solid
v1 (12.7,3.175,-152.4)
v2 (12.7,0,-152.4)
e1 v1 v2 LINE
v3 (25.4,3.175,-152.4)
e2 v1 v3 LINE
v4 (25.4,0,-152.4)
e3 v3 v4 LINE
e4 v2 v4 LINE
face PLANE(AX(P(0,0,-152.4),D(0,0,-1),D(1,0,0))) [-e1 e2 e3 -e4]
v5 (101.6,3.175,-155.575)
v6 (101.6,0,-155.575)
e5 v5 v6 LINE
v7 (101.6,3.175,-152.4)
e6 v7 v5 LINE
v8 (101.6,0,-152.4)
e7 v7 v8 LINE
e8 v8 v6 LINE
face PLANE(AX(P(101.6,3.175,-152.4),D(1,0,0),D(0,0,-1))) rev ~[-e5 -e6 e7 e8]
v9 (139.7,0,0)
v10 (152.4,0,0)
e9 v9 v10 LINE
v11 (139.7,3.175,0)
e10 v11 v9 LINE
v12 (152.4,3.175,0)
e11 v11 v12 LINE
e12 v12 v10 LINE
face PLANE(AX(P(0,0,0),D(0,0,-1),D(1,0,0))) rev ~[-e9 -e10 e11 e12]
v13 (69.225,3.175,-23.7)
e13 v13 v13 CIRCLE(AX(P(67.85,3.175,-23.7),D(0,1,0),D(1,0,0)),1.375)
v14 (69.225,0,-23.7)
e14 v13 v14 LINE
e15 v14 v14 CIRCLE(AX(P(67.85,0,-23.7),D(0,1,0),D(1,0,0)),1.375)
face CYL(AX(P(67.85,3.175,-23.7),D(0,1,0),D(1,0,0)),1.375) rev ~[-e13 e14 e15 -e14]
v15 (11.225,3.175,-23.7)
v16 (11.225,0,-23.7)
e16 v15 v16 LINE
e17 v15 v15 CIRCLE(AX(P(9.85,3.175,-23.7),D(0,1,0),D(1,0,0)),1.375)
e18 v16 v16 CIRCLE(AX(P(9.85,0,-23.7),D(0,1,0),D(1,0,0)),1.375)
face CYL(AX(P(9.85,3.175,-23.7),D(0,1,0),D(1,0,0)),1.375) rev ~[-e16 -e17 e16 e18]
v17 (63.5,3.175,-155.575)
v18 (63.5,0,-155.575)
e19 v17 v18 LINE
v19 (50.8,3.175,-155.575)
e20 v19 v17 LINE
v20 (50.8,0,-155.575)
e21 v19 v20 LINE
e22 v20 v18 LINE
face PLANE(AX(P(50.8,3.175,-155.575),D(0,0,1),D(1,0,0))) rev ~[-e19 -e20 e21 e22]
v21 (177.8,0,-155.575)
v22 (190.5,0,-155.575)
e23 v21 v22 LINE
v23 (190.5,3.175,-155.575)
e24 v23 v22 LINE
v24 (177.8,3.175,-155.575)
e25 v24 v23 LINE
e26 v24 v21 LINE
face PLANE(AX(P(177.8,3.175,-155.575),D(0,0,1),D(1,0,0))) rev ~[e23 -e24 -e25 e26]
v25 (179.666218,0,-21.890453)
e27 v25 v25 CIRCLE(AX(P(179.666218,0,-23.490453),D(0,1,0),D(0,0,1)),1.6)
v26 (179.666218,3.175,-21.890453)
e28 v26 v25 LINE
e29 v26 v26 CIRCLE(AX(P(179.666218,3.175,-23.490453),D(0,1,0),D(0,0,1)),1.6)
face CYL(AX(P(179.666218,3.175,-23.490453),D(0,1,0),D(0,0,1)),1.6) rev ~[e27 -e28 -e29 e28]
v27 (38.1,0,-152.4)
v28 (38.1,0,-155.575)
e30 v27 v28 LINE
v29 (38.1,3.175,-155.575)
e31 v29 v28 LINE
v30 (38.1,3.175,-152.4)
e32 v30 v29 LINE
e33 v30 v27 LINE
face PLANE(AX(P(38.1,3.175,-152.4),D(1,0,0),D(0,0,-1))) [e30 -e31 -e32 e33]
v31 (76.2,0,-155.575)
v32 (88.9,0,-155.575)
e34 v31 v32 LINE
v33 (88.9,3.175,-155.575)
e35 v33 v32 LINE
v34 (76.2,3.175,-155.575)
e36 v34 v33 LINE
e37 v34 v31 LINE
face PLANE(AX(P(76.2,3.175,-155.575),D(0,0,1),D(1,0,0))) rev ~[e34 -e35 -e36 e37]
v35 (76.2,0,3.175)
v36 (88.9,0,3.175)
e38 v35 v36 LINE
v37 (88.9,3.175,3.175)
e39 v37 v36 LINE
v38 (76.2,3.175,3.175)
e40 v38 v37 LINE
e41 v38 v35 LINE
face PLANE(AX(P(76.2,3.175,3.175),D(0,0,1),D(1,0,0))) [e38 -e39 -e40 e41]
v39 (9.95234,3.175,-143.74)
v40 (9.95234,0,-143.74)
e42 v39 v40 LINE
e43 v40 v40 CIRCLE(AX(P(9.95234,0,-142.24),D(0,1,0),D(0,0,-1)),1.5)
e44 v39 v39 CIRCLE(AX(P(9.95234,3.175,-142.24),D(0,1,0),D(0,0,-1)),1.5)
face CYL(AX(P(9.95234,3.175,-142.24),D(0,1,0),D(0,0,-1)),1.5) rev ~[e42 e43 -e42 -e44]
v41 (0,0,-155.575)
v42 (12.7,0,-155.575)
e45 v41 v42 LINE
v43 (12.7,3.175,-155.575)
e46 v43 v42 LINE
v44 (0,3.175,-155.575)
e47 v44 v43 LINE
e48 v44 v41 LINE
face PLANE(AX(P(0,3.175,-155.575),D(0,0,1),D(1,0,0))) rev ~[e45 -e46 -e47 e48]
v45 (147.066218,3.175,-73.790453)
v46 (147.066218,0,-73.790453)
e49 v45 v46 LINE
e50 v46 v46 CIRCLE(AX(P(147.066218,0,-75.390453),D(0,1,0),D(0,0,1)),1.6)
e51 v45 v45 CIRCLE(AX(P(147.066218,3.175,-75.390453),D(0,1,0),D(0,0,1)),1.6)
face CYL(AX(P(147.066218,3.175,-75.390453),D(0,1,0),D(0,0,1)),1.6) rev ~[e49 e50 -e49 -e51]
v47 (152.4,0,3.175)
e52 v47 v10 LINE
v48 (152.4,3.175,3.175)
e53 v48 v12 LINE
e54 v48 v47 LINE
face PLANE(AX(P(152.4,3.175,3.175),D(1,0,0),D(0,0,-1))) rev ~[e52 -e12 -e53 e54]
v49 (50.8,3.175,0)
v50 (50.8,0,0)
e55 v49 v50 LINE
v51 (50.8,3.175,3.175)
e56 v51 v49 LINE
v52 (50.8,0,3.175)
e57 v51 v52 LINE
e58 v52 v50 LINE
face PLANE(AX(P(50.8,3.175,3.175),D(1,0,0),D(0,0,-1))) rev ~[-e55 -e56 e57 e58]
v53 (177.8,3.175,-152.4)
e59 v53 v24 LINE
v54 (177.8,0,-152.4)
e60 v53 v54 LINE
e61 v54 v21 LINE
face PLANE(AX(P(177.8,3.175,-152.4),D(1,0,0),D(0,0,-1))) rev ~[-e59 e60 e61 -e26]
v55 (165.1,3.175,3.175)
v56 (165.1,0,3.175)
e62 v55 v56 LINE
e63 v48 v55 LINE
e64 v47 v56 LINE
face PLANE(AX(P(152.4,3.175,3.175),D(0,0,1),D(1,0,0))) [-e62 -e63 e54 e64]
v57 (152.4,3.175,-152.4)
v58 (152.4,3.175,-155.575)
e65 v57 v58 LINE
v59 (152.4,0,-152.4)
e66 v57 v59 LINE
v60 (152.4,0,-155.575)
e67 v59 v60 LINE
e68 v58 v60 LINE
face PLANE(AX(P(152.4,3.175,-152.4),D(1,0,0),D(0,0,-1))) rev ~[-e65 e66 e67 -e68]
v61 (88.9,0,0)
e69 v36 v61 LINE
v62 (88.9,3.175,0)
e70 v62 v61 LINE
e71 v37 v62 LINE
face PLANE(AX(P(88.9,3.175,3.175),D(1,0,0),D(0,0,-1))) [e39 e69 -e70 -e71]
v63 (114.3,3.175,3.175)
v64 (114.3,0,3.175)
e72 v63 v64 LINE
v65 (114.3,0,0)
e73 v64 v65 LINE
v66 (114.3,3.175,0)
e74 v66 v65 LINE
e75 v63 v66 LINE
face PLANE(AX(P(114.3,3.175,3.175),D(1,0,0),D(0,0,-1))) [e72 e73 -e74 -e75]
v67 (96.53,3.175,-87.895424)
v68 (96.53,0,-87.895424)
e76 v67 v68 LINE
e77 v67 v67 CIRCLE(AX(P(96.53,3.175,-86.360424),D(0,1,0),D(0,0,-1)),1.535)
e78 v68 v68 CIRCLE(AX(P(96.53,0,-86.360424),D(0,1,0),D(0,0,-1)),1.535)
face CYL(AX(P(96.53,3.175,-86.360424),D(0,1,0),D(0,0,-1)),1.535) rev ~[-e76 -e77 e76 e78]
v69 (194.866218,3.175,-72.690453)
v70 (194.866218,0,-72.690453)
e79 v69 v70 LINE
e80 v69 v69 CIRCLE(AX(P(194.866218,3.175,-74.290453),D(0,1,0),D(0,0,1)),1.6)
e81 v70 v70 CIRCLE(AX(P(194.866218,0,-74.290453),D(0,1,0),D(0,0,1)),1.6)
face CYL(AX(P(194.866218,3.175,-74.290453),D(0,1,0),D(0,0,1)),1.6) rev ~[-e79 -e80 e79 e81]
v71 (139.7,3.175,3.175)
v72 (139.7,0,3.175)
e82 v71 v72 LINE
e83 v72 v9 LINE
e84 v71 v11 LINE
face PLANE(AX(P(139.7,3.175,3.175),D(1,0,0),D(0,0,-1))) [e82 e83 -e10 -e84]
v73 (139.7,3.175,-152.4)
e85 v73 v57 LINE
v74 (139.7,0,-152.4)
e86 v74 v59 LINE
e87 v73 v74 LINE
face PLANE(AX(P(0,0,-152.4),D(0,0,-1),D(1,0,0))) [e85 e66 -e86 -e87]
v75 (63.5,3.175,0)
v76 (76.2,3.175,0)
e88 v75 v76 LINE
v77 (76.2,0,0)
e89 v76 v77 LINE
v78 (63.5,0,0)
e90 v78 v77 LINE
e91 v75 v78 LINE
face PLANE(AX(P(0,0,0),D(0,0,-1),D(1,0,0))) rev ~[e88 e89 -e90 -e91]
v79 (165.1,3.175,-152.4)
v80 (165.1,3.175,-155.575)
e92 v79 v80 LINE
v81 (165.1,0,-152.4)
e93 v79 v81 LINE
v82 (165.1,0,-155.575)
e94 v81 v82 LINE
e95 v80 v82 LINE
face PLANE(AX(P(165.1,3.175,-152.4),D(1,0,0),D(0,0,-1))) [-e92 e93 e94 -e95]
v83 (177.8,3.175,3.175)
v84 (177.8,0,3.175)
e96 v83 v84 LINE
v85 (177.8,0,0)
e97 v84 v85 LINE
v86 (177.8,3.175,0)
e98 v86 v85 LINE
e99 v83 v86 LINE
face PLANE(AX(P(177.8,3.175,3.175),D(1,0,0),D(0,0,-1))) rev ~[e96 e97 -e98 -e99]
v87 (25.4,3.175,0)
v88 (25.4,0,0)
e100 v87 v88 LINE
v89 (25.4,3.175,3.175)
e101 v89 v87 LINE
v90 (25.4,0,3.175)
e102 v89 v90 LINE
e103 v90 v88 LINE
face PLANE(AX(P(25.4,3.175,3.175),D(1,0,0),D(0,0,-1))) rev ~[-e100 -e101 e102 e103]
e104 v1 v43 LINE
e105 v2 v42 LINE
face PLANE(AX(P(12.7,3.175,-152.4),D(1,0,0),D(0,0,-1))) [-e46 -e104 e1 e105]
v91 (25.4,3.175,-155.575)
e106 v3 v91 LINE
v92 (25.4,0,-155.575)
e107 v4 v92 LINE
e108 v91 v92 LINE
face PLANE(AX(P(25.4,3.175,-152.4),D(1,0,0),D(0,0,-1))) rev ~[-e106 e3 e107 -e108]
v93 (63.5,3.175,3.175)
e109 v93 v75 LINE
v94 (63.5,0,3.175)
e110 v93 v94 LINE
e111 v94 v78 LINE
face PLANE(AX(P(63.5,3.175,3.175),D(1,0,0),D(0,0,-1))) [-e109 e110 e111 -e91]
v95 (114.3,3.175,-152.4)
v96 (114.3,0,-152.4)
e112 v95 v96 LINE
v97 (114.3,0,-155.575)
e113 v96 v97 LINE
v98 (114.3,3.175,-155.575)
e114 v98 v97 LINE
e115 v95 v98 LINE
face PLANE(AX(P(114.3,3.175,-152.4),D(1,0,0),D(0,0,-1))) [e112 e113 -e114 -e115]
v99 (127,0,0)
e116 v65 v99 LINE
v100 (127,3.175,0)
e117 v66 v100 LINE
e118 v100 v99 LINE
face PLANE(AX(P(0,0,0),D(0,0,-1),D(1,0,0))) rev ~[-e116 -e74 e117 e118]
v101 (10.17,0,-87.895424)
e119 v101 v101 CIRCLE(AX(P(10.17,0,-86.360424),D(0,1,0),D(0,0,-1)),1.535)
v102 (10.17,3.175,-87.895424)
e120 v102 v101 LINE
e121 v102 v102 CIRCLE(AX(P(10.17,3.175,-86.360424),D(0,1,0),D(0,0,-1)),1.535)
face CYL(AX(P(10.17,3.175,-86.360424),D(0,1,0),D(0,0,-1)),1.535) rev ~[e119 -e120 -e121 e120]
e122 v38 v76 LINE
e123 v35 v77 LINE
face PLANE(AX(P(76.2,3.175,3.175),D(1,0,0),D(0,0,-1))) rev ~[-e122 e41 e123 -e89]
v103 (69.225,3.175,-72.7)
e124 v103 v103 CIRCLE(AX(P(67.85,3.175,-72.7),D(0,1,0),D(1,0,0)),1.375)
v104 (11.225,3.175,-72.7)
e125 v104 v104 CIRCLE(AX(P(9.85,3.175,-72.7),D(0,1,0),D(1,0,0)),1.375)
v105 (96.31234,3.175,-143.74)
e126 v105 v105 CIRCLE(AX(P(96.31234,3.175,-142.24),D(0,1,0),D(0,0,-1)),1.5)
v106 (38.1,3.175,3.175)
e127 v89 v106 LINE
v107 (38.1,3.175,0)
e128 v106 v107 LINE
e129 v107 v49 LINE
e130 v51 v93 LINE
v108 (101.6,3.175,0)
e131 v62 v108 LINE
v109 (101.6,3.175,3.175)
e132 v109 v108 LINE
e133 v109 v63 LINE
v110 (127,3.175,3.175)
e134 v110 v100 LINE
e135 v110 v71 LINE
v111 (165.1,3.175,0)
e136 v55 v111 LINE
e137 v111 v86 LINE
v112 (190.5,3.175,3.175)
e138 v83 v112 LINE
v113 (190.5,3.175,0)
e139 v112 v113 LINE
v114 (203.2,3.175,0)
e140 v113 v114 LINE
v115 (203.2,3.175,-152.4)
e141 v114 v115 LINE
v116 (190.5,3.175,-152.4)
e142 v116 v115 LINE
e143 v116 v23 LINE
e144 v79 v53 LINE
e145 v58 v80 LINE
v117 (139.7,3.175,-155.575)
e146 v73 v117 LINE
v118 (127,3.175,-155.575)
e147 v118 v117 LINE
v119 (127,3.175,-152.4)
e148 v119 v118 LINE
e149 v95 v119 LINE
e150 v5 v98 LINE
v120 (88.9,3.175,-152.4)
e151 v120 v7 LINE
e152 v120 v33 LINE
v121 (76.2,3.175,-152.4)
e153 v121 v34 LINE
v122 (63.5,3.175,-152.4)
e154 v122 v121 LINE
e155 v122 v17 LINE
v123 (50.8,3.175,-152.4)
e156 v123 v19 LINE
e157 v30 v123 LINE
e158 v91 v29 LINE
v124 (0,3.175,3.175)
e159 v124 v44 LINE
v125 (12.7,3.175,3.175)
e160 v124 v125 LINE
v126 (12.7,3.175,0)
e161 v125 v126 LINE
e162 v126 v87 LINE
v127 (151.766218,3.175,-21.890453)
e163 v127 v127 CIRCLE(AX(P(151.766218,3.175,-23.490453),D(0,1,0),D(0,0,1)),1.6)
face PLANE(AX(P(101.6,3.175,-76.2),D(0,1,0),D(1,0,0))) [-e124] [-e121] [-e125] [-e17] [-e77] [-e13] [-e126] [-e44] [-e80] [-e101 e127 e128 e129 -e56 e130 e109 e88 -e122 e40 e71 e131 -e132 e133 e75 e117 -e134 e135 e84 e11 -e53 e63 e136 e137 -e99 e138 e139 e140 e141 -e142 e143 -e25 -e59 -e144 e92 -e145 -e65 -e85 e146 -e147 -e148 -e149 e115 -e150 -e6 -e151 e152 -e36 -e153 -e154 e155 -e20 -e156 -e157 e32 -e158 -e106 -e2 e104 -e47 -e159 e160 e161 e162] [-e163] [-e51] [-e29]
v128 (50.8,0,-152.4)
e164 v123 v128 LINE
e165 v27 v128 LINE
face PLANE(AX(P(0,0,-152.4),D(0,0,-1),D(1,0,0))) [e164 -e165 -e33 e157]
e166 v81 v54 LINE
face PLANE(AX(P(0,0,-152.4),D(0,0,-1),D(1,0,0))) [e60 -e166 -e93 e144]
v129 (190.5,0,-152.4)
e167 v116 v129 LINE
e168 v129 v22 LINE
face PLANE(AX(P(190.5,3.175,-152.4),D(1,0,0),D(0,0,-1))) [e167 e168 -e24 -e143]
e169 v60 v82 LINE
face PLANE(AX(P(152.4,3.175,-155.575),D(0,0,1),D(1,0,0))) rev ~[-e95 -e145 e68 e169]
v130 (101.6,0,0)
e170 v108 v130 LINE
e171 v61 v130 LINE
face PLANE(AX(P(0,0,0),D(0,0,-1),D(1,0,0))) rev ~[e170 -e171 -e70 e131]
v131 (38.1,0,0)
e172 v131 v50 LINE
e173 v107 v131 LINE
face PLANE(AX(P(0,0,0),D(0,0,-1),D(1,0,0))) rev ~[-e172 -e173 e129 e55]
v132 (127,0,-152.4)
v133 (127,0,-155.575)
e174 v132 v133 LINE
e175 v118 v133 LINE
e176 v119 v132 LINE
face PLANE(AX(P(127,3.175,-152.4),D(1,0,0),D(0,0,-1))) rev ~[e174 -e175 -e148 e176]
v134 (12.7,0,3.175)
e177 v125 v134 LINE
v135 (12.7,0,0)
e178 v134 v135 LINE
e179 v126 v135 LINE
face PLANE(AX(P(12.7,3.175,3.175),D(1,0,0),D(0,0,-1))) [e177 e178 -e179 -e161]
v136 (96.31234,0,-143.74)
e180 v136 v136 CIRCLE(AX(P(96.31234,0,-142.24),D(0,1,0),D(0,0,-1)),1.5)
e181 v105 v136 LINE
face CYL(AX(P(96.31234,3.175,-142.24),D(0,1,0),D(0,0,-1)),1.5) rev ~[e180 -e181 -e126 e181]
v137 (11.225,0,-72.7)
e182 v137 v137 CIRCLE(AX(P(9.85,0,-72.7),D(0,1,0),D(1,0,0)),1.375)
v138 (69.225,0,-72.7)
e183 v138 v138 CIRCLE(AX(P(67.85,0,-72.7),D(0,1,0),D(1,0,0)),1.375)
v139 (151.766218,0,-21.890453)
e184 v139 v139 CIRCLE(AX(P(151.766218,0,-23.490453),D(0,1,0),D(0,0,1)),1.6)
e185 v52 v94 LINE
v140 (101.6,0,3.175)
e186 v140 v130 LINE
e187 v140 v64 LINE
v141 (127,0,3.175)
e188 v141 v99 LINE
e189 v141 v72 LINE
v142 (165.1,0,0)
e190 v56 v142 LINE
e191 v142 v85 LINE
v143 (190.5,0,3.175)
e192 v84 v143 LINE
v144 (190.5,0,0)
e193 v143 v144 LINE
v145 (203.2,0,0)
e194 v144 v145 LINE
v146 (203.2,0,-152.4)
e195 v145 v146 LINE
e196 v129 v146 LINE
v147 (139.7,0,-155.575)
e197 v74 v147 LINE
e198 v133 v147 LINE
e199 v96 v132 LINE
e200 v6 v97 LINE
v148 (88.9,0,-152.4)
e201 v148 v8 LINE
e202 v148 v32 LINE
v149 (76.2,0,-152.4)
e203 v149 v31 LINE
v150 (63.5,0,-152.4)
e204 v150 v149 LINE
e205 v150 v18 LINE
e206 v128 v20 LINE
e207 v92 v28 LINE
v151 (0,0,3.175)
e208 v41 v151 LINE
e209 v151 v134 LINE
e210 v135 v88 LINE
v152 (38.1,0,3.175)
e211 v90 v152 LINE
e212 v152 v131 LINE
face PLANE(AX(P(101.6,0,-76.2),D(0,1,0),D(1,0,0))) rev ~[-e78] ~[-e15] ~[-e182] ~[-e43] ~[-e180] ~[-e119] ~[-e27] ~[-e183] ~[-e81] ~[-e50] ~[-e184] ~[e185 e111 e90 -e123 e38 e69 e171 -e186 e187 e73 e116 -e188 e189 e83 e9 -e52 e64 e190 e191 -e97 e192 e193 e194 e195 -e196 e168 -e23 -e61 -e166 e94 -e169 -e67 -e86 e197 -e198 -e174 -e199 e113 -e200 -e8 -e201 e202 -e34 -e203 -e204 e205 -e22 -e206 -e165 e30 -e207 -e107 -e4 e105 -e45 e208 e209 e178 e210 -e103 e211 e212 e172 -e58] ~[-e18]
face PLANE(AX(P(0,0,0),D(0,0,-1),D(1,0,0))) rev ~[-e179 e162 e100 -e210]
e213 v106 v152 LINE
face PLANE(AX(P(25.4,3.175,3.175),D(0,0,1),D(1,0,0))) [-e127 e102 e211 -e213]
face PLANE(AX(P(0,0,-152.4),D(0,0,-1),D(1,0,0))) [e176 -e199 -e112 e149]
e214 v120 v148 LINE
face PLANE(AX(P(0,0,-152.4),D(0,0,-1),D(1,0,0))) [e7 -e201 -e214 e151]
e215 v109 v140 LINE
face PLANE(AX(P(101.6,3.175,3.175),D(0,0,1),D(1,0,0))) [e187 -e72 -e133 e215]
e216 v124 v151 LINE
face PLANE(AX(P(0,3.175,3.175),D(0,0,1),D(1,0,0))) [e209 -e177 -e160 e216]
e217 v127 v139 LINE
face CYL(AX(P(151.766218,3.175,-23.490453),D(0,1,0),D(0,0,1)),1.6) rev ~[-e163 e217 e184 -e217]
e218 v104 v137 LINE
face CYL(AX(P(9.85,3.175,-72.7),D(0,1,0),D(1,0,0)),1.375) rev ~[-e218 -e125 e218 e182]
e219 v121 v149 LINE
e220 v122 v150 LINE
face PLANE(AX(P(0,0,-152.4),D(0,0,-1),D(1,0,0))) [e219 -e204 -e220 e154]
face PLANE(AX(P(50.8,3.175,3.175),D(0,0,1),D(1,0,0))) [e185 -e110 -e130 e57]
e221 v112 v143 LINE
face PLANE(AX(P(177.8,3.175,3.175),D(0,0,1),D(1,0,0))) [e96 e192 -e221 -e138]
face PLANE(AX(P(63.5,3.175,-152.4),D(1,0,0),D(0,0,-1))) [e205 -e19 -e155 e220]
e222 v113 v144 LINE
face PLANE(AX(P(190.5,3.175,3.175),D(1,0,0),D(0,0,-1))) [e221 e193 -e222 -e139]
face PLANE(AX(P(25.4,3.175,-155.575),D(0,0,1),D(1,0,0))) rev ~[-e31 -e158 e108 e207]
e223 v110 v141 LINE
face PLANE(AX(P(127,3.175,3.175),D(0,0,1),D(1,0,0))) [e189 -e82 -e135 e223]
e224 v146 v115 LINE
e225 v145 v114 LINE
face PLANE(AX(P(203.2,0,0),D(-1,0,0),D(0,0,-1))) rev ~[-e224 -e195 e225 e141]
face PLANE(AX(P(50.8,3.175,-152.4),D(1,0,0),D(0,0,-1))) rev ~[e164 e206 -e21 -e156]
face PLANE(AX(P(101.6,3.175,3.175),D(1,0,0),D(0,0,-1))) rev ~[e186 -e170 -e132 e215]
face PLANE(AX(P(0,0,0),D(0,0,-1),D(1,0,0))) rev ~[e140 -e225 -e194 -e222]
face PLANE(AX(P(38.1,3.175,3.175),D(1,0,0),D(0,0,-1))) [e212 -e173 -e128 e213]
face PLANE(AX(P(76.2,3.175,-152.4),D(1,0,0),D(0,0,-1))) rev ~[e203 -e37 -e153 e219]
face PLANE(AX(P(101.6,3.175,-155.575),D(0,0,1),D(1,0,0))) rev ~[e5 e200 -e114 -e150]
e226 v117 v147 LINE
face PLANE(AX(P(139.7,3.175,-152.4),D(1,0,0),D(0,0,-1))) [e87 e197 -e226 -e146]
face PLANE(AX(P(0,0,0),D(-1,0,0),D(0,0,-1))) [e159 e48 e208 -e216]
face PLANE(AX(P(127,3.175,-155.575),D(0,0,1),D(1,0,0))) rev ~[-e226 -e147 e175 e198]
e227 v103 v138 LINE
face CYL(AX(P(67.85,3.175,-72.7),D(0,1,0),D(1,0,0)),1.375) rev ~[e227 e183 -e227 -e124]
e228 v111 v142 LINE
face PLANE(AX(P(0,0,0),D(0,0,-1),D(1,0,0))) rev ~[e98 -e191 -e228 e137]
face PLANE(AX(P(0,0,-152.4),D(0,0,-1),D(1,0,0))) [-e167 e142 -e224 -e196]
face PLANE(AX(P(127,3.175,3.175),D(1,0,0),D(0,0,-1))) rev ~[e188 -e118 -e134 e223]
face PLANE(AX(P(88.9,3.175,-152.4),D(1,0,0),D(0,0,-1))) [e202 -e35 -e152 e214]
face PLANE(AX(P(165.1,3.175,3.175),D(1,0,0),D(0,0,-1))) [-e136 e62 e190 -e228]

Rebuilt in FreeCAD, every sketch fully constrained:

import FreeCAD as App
import Part
import Sketcher
from FreeCAD import Vector
Q = App.Units.Quantity


def add_polygon(sketch, points):
    """Adds a closed chain of lines whose ends are joined by coincident constraints."""
    first, n = sketch.GeometryCount, len(points)
    for a, b in zip(points, points[1:] + points[:1]):
        sketch.addGeometry(Part.LineSegment(App.Vector(*a, 0), App.Vector(*b, 0)), False)
    for i in range(n):
        sketch.addConstraint(Sketcher.Constraint("Coincident", first + i, 2, first + (i + 1) % n, 1))

doc = App.newDocument("Part")
body = doc.addObject("PartDesign::Body", "Body")

sketch1 = body.newObject("Sketcher::SketchObject", "Sketch")
sketch1.AttachmentSupport = (doc.getObject("XZ_Plane"), [""])
sketch1.MapMode = "FlatFace"
add_polygon(sketch1, [(0, -152), (0, 0), (203, 0), (203, -152)])
sketch1.addConstraint([
    Sketcher.Constraint("Vertical", 0),
    Sketcher.Constraint("Horizontal", 1),
    Sketcher.Constraint("Vertical", 2),
    Sketcher.Constraint("Horizontal", 3),
    Sketcher.Constraint("Coincident", 0, 2, -1, 1),
    Sketcher.Constraint("DistanceX", 1, 1, 1, 2, Q("8 in")),
    Sketcher.Constraint("DistanceY", 0, 1, 0, 2, Q("6 in")),
])
pad1 = body.newObject("PartDesign::Pad", "Pad")
pad1.Profile = sketch1
pad1.Length = Q("0.125 in")
pad1.Reversed = True

sketch2 = body.newObject("Sketcher::SketchObject", "Sketch001")
sketch2.AttachmentSupport = (doc.getObject("XZ_Plane"), [""])
sketch2.MapMode = "FlatFace"
sketch2.AttachmentOffset = App.Placement(Vector(0, 0, -0.125 * 25.4), App.Rotation())
sketch2.addGeometry([
    Part.Circle(Vector(9.8, -72.7, 0), Vector(0, 0, 1), 1.4),
    Part.Circle(Vector(9.8, -23.7, 0), Vector(0, 0, 1), 1.4),
    Part.Circle(Vector(67.8, -23.7, 0), Vector(0, 0, 1), 1.4),
    Part.Circle(Vector(67.8, -72.7, 0), Vector(0, 0, 1), 1.4),
], False)
sketch2.addConstraint([
    Sketcher.Constraint("Equal", 0, 1),
    Sketcher.Constraint("Equal", 1, 2),
    Sketcher.Constraint("Equal", 2, 3),
    Sketcher.Constraint("Horizontal", 1, 3, 2, 3),
    Sketcher.Constraint("Horizontal", 0, 3, 3, 3),
    Sketcher.Constraint("Vertical", 0, 3, 1, 3),
    Sketcher.Constraint("Vertical", 2, 3, 3, 3),
    Sketcher.Constraint("Diameter", 0, 2.75),
    Sketcher.Constraint("DistanceX", -1, 1, 0, 3, 9.85),
    Sketcher.Constraint("DistanceY", 0, 3, -1, 1, 72.7),
    Sketcher.Constraint("DistanceY", 1, 3, -1, 1, 23.7),
    Sketcher.Constraint("DistanceX", -1, 1, 2, 3, 67.85),
])
pocket1 = body.newObject("PartDesign::Pocket", "Pocket")
pocket1.Profile = sketch2
pocket1.Type = "ThroughAll"
pocket1.Reversed = True

sketch3 = body.newObject("Sketcher::SketchObject", "Sketch002")
sketch3.AttachmentSupport = (doc.getObject("XZ_Plane"), [""])
sketch3.MapMode = "FlatFace"
sketch3.AttachmentOffset = App.Placement(Vector(0, 0, -0.125 * 25.4), App.Rotation())
sketch3.addGeometry([
    Part.Circle(Vector(147.1, -75.4, 0), Vector(0, 0, 1), 1.6),
    Part.Circle(Vector(194.9, -74.3, 0), Vector(0, 0, 1), 1.6),
    Part.Circle(Vector(151.8, -23.5, 0), Vector(0, 0, 1), 1.6),
    Part.Circle(Vector(179.7, -23.5, 0), Vector(0, 0, 1), 1.6),
], False)
sketch3.addConstraint([
    Sketcher.Constraint("Equal", 0, 1),
    Sketcher.Constraint("Equal", 1, 2),
    Sketcher.Constraint("Equal", 2, 3),
    Sketcher.Constraint("Horizontal", 2, 3, 3, 3),
    Sketcher.Constraint("DistanceY", 1, 3, 2, 3, Q("2 in")),
    Sketcher.Constraint("Diameter", 0, 3.2),
    Sketcher.Constraint("DistanceX", 0, 3, 1, 3, 47.8),
    Sketcher.Constraint("DistanceY", 0, 3, 1, 3, 1.1),
    Sketcher.Constraint("DistanceX", 0, 3, 2, 3, 4.7),
    Sketcher.Constraint("DistanceX", 2, 3, 3, 3, 27.9),
    Sketcher.Constraint("DistanceX", -1, 1, 0, 3, 147.066218),
    Sketcher.Constraint("DistanceY", 0, 3, -1, 1, 75.390453),
])
pocket2 = body.newObject("PartDesign::Pocket", "Pocket001")
pocket2.Profile = sketch3
pocket2.Type = "ThroughAll"
pocket2.Reversed = True

sketch4 = body.newObject("Sketcher::SketchObject", "Sketch003")
sketch4.AttachmentSupport = (doc.getObject("XZ_Plane"), [""])
sketch4.MapMode = "FlatFace"
sketch4.AttachmentOffset = App.Placement(Vector(0, 0, -0.125 * 25.4), App.Rotation())
sketch4.addGeometry([
    Part.Circle(Vector(10.2, -86.4, 0), Vector(0, 0, 1), 1.5),
    Part.Circle(Vector(10, -142.2, 0), Vector(0, 0, 1), 1.5),
    Part.Circle(Vector(96.5, -86.4, 0), Vector(0, 0, 1), 1.5),
    Part.Circle(Vector(96.3, -142.2, 0), Vector(0, 0, 1), 1.5),
], False)
sketch4.addConstraint([
    Sketcher.Constraint("Equal", 0, 2),
    Sketcher.Constraint("Equal", 1, 3),
    Sketcher.Constraint("Horizontal", 0, 3, 2, 3),
    Sketcher.Constraint("Horizontal", 1, 3, 3, 3),
    Sketcher.Constraint("DistanceY", 1, 3, -1, 1, Q("5.6 in")),
    Sketcher.Constraint("DistanceX", 0, 3, 2, 3, Q("3.4 in")),
    Sketcher.Constraint("DistanceX", 1, 3, 3, 3, Q("3.4 in")),
    Sketcher.Constraint("Diameter", 0, 3.07),
    Sketcher.Constraint("Diameter", 1, 3.0),
    Sketcher.Constraint("DistanceX", -1, 1, 0, 3, 10.17),
    Sketcher.Constraint("DistanceX", -1, 1, 1, 3, 9.95234),
    Sketcher.Constraint("DistanceY", 0, 3, -1, 1, 86.360424),
])
pocket3 = body.newObject("PartDesign::Pocket", "Pocket002")
pocket3.Profile = sketch4
pocket3.Type = "ThroughAll"
pocket3.Midplane = True
body2 = doc.addObject("PartDesign::Body", "Body001")

sketch5 = body2.newObject("Sketcher::SketchObject", "Sketch004")
sketch5.AttachmentSupport = (doc.getObject("XZ_Plane001"), [""])
sketch5.MapMode = "FlatFace"
sketch5.AttachmentOffset = App.Placement(Vector(0, 0, -0.125 * 25.4), App.Rotation())
add_polygon(sketch5, [(25.4, 0), (25.4, 3.2), (38.1, 3.2), (38.1, 0)])
sketch5.addConstraint([
    Sketcher.Constraint("Vertical", 0),
    Sketcher.Constraint("Horizontal", 1),
    Sketcher.Constraint("Vertical", 2),
    Sketcher.Constraint("Horizontal", 3),
    Sketcher.Constraint("PointOnObject", 2, 2, -1),
    Sketcher.Constraint("DistanceX", 1, 1, 1, 2, Q("0.5 in")),
    Sketcher.Constraint("DistanceX", -1, 1, 0, 2, Q("1 in")),
    Sketcher.Constraint("DistanceY", 0, 1, 0, 2, Q("0.125 in")),
])
pad2 = body2.newObject("PartDesign::Pad", "Pad001")
pad2.Profile = sketch5
pad2.Length = Q("0.125 in")
body3 = doc.addObject("PartDesign::Body", "Body002")

sketch6 = body3.newObject("Sketcher::SketchObject", "Sketch005")
sketch6.AttachmentSupport = (doc.getObject("XZ_Plane002"), [""])
sketch6.MapMode = "FlatFace"
sketch6.AttachmentOffset = App.Placement(Vector(0, 0, -0.125 * 25.4), App.Rotation())
add_polygon(sketch6, [(0, 0), (0, 3.2), (12.7, 3.2), (12.7, 0)])
sketch6.addConstraint([
    Sketcher.Constraint("Vertical", 0),
    Sketcher.Constraint("Horizontal", 1),
    Sketcher.Constraint("Vertical", 2),
    Sketcher.Constraint("Horizontal", 3),
    Sketcher.Constraint("Coincident", 3, 2, -1, 1),
    Sketcher.Constraint("DistanceX", 1, 1, 1, 2, Q("0.5 in")),
    Sketcher.Constraint("DistanceY", 0, 1, 0, 2, Q("0.125 in")),
])
pad3 = body3.newObject("PartDesign::Pad", "Pad002")
pad3.Profile = sketch6
pad3.Length = Q("0.125 in")
body4 = doc.addObject("PartDesign::Body", "Body003")

sketch7 = body4.newObject("Sketcher::SketchObject", "Sketch006")
sketch7.AttachmentSupport = (doc.getObject("XZ_Plane003"), [""])
sketch7.MapMode = "FlatFace"
sketch7.AttachmentOffset = App.Placement(Vector(0, 0, -0.125 * 25.4), App.Rotation())
add_polygon(sketch7, [(50.8, 0), (50.8, 3.2), (63.5, 3.2), (63.5, 0)])
sketch7.addConstraint([
    Sketcher.Constraint("Vertical", 0),
    Sketcher.Constraint("Horizontal", 1),
    Sketcher.Constraint("Vertical", 2),
    Sketcher.Constraint("Horizontal", 3),
    Sketcher.Constraint("PointOnObject", 2, 2, -1),
    Sketcher.Constraint("DistanceX", 1, 1, 1, 2, Q("0.5 in")),
    Sketcher.Constraint("DistanceX", -1, 1, 0, 2, Q("2 in")),
    Sketcher.Constraint("DistanceY", 0, 1, 0, 2, Q("0.125 in")),
])
pad4 = body4.newObject("PartDesign::Pad", "Pad003")
pad4.Profile = sketch7
pad4.Length = Q("0.125 in")
body5 = doc.addObject("PartDesign::Body", "Body004")

sketch8 = body5.newObject("Sketcher::SketchObject", "Sketch007")
sketch8.AttachmentSupport = (doc.getObject("XZ_Plane004"), [""])
sketch8.MapMode = "FlatFace"
sketch8.AttachmentOffset = App.Placement(Vector(0, 0, -0.125 * 25.4), App.Rotation())
add_polygon(sketch8, [(76.2, 0), (76.2, 3.2), (88.9, 3.2), (88.9, 0)])
sketch8.addConstraint([
    Sketcher.Constraint("Vertical", 0),
    Sketcher.Constraint("Horizontal", 1),
    Sketcher.Constraint("Vertical", 2),
    Sketcher.Constraint("Horizontal", 3),
    Sketcher.Constraint("PointOnObject", 2, 2, -1),
    Sketcher.Constraint("DistanceX", 1, 1, 1, 2, Q("0.5 in")),
    Sketcher.Constraint("DistanceX", -1, 1, 0, 2, Q("3 in")),
    Sketcher.Constraint("DistanceY", 0, 1, 0, 2, Q("0.125 in")),
])
pad5 = body5.newObject("PartDesign::Pad", "Pad004")
pad5.Profile = sketch8
pad5.Length = Q("0.125 in")
body6 = doc.addObject("PartDesign::Body", "Body005")

sketch9 = body6.newObject("Sketcher::SketchObject", "Sketch008")
sketch9.AttachmentSupport = (doc.getObject("XZ_Plane005"), [""])
sketch9.MapMode = "FlatFace"
sketch9.AttachmentOffset = App.Placement(Vector(0, 0, -0.125 * 25.4), App.Rotation())
add_polygon(sketch9, [(101.6, 0), (101.6, 3.2), (114.3, 3.2), (114.3, 0)])
sketch9.addConstraint([
    Sketcher.Constraint("Vertical", 0),
    Sketcher.Constraint("Horizontal", 1),
    Sketcher.Constraint("Vertical", 2),
    Sketcher.Constraint("Horizontal", 3),
    Sketcher.Constraint("PointOnObject", 2, 2, -1),
    Sketcher.Constraint("DistanceX", 1, 1, 1, 2, Q("0.5 in")),
    Sketcher.Constraint("DistanceX", -1, 1, 0, 2, Q("4 in")),
    Sketcher.Constraint("DistanceY", 0, 1, 0, 2, Q("0.125 in")),
])
pad6 = body6.newObject("PartDesign::Pad", "Pad005")
pad6.Profile = sketch9
pad6.Length = Q("0.125 in")
body7 = doc.addObject("PartDesign::Body", "Body006")

sketch10 = body7.newObject("Sketcher::SketchObject", "Sketch009")
sketch10.AttachmentSupport = (doc.getObject("XZ_Plane006"), [""])
sketch10.MapMode = "FlatFace"
sketch10.AttachmentOffset = App.Placement(Vector(0, 0, -0.125 * 25.4), App.Rotation())
add_polygon(sketch10, [(127, 0), (127, 3.2), (139.7, 3.2), (139.7, 0)])
sketch10.addConstraint([
    Sketcher.Constraint("Vertical", 0),
    Sketcher.Constraint("Horizontal", 1),
    Sketcher.Constraint("Vertical", 2),
    Sketcher.Constraint("Horizontal", 3),
    Sketcher.Constraint("PointOnObject", 2, 2, -1),
    Sketcher.Constraint("DistanceX", 1, 1, 1, 2, Q("0.5 in")),
    Sketcher.Constraint("DistanceX", -1, 1, 0, 2, Q("5 in")),
    Sketcher.Constraint("DistanceY", 0, 1, 0, 2, Q("0.125 in")),
])
pad7 = body7.newObject("PartDesign::Pad", "Pad006")
pad7.Profile = sketch10
pad7.Length = Q("0.125 in")
body8 = doc.addObject("PartDesign::Body", "Body007")

sketch11 = body8.newObject("Sketcher::SketchObject", "Sketch010")
sketch11.AttachmentSupport = (doc.getObject("XZ_Plane007"), [""])
sketch11.MapMode = "FlatFace"
sketch11.AttachmentOffset = App.Placement(Vector(0, 0, -0.125 * 25.4), App.Rotation())
add_polygon(sketch11, [(152.4, 0), (152.4, 3.2), (165.1, 3.2), (165.1, 0)])
sketch11.addConstraint([
    Sketcher.Constraint("Vertical", 0),
    Sketcher.Constraint("Horizontal", 1),
    Sketcher.Constraint("Vertical", 2),
    Sketcher.Constraint("Horizontal", 3),
    Sketcher.Constraint("PointOnObject", 2, 2, -1),
    Sketcher.Constraint("DistanceX", 1, 1, 1, 2, Q("0.5 in")),
    Sketcher.Constraint("DistanceX", -1, 1, 0, 2, Q("6 in")),
    Sketcher.Constraint("DistanceY", 0, 1, 0, 2, Q("0.125 in")),
])
pad8 = body8.newObject("PartDesign::Pad", "Pad007")
pad8.Profile = sketch11
pad8.Length = Q("0.125 in")
body9 = doc.addObject("PartDesign::Body", "Body008")

sketch12 = body9.newObject("Sketcher::SketchObject", "Sketch011")
sketch12.AttachmentSupport = (doc.getObject("XZ_Plane008"), [""])
sketch12.MapMode = "FlatFace"
sketch12.AttachmentOffset = App.Placement(Vector(0, 0, -0.125 * 25.4), App.Rotation())
add_polygon(sketch12, [(177.8, 0), (177.8, 3.2), (190.5, 3.2), (190.5, 0)])
sketch12.addConstraint([
    Sketcher.Constraint("Vertical", 0),
    Sketcher.Constraint("Horizontal", 1),
    Sketcher.Constraint("Vertical", 2),
    Sketcher.Constraint("Horizontal", 3),
    Sketcher.Constraint("PointOnObject", 2, 2, -1),
    Sketcher.Constraint("DistanceX", 1, 1, 1, 2, Q("0.5 in")),
    Sketcher.Constraint("DistanceX", -1, 1, 0, 2, Q("7 in")),
    Sketcher.Constraint("DistanceY", 0, 1, 0, 2, Q("0.125 in")),
])
pad9 = body9.newObject("PartDesign::Pad", "Pad008")
pad9.Profile = sketch12
pad9.Length = Q("0.125 in")
body10 = doc.addObject("PartDesign::Body", "Body009")

sketch13 = body10.newObject("Sketcher::SketchObject", "Sketch012")
sketch13.AttachmentSupport = (doc.getObject("XZ_Plane009"), [""])
sketch13.MapMode = "FlatFace"
sketch13.AttachmentOffset = App.Placement(Vector(0, 0, -0.125 * 25.4), App.Rotation())
add_polygon(sketch13, [(177.8, -155.6), (177.8, -152.4), (190.5, -152.4), (190.5, -155.6)])
sketch13.addConstraint([
    Sketcher.Constraint("Vertical", 0),
    Sketcher.Constraint("Horizontal", 1),
    Sketcher.Constraint("Vertical", 2),
    Sketcher.Constraint("Horizontal", 3),
    Sketcher.Constraint("DistanceX", 1, 1, 1, 2, Q("0.5 in")),
    Sketcher.Constraint("DistanceX", -1, 1, 0, 2, Q("7 in")),
    Sketcher.Constraint("DistanceY", 0, 2, -1, 1, Q("6 in")),
    Sketcher.Constraint("DistanceY", 0, 1, 0, 2, Q("0.125 in")),
])
pad10 = body10.newObject("PartDesign::Pad", "Pad009")
pad10.Profile = sketch13
pad10.Length = Q("0.125 in")
body11 = doc.addObject("PartDesign::Body", "Body010")

sketch14 = body11.newObject("Sketcher::SketchObject", "Sketch013")
sketch14.AttachmentSupport = (doc.getObject("XZ_Plane010"), [""])
sketch14.MapMode = "FlatFace"
sketch14.AttachmentOffset = App.Placement(Vector(0, 0, -0.125 * 25.4), App.Rotation())
add_polygon(sketch14, [(152.4, -155.6), (152.4, -152.4), (165.1, -152.4), (165.1, -155.6)])
sketch14.addConstraint([
    Sketcher.Constraint("Vertical", 0),
    Sketcher.Constraint("Horizontal", 1),
    Sketcher.Constraint("Vertical", 2),
    Sketcher.Constraint("Horizontal", 3),
    Sketcher.Constraint("DistanceX", 1, 1, 1, 2, Q("0.5 in")),
    Sketcher.Constraint("DistanceX", -1, 1, 0, 2, Q("6 in")),
    Sketcher.Constraint("DistanceY", 0, 2, -1, 1, Q("6 in")),
    Sketcher.Constraint("DistanceY", 0, 1, 0, 2, Q("0.125 in")),
])
pad11 = body11.newObject("PartDesign::Pad", "Pad010")
pad11.Profile = sketch14
pad11.Length = Q("0.125 in")
body12 = doc.addObject("PartDesign::Body", "Body011")

sketch15 = body12.newObject("Sketcher::SketchObject", "Sketch014")
sketch15.AttachmentSupport = (doc.getObject("XZ_Plane011"), [""])
sketch15.MapMode = "FlatFace"
sketch15.AttachmentOffset = App.Placement(Vector(0, 0, -0.125 * 25.4), App.Rotation())
add_polygon(sketch15, [(127, -155.6), (127, -152.4), (139.7, -152.4), (139.7, -155.6)])
sketch15.addConstraint([
    Sketcher.Constraint("Vertical", 0),
    Sketcher.Constraint("Horizontal", 1),
    Sketcher.Constraint("Vertical", 2),
    Sketcher.Constraint("Horizontal", 3),
    Sketcher.Constraint("DistanceX", 1, 1, 1, 2, Q("0.5 in")),
    Sketcher.Constraint("DistanceX", -1, 1, 0, 2, Q("5 in")),
    Sketcher.Constraint("DistanceY", 0, 2, -1, 1, Q("6 in")),
    Sketcher.Constraint("DistanceY", 0, 1, 0, 2, Q("0.125 in")),
])
pad12 = body12.newObject("PartDesign::Pad", "Pad011")
pad12.Profile = sketch15
pad12.Length = Q("0.125 in")
body13 = doc.addObject("PartDesign::Body", "Body012")

sketch16 = body13.newObject("Sketcher::SketchObject", "Sketch015")
sketch16.AttachmentSupport = (doc.getObject("XZ_Plane012"), [""])
sketch16.MapMode = "FlatFace"
sketch16.AttachmentOffset = App.Placement(Vector(0, 0, -0.125 * 25.4), App.Rotation())
add_polygon(sketch16, [(101.6, -155.6), (101.6, -152.4), (114.3, -152.4), (114.3, -155.6)])
sketch16.addConstraint([
    Sketcher.Constraint("Vertical", 0),
    Sketcher.Constraint("Horizontal", 1),
    Sketcher.Constraint("Vertical", 2),
    Sketcher.Constraint("Horizontal", 3),
    Sketcher.Constraint("DistanceX", 1, 1, 1, 2, Q("0.5 in")),
    Sketcher.Constraint("DistanceX", -1, 1, 0, 2, Q("4 in")),
    Sketcher.Constraint("DistanceY", 0, 2, -1, 1, Q("6 in")),
    Sketcher.Constraint("DistanceY", 0, 1, 0, 2, Q("0.125 in")),
])
pad13 = body13.newObject("PartDesign::Pad", "Pad012")
pad13.Profile = sketch16
pad13.Length = Q("0.125 in")
body14 = doc.addObject("PartDesign::Body", "Body013")

sketch17 = body14.newObject("Sketcher::SketchObject", "Sketch016")
sketch17.AttachmentSupport = (doc.getObject("XZ_Plane013"), [""])
sketch17.MapMode = "FlatFace"
sketch17.AttachmentOffset = App.Placement(Vector(0, 0, -0.125 * 25.4), App.Rotation())
add_polygon(sketch17, [(76.2, -155.6), (76.2, -152.4), (88.9, -152.4), (88.9, -155.6)])
sketch17.addConstraint([
    Sketcher.Constraint("Vertical", 0),
    Sketcher.Constraint("Horizontal", 1),
    Sketcher.Constraint("Vertical", 2),
    Sketcher.Constraint("Horizontal", 3),
    Sketcher.Constraint("DistanceX", 1, 1, 1, 2, Q("0.5 in")),
    Sketcher.Constraint("DistanceX", -1, 1, 0, 2, Q("3 in")),
    Sketcher.Constraint("DistanceY", 0, 2, -1, 1, Q("6 in")),
    Sketcher.Constraint("DistanceY", 0, 1, 0, 2, Q("0.125 in")),
])
pad14 = body14.newObject("PartDesign::Pad", "Pad013")
pad14.Profile = sketch17
pad14.Length = Q("0.125 in")
body15 = doc.addObject("PartDesign::Body", "Body014")

sketch18 = body15.newObject("Sketcher::SketchObject", "Sketch017")
sketch18.AttachmentSupport = (doc.getObject("XZ_Plane014"), [""])
sketch18.MapMode = "FlatFace"
sketch18.AttachmentOffset = App.Placement(Vector(0, 0, -0.125 * 25.4), App.Rotation())
add_polygon(sketch18, [(50.8, -155.6), (50.8, -152.4), (63.5, -152.4), (63.5, -155.6)])
sketch18.addConstraint([
    Sketcher.Constraint("Vertical", 0),
    Sketcher.Constraint("Horizontal", 1),
    Sketcher.Constraint("Vertical", 2),
    Sketcher.Constraint("Horizontal", 3),
    Sketcher.Constraint("DistanceX", 1, 1, 1, 2, Q("0.5 in")),
    Sketcher.Constraint("DistanceX", -1, 1, 0, 2, Q("2 in")),
    Sketcher.Constraint("DistanceY", 0, 2, -1, 1, Q("6 in")),
    Sketcher.Constraint("DistanceY", 0, 1, 0, 2, Q("0.125 in")),
])
pad15 = body15.newObject("PartDesign::Pad", "Pad014")
pad15.Profile = sketch18
pad15.Length = Q("0.125 in")
body16 = doc.addObject("PartDesign::Body", "Body015")

sketch19 = body16.newObject("Sketcher::SketchObject", "Sketch018")
sketch19.AttachmentSupport = (doc.getObject("XZ_Plane015"), [""])
sketch19.MapMode = "FlatFace"
sketch19.AttachmentOffset = App.Placement(Vector(0, 0, -0.125 * 25.4), App.Rotation())
add_polygon(sketch19, [(25.4, -155.6), (25.4, -152.4), (38.1, -152.4), (38.1, -155.6)])
sketch19.addConstraint([
    Sketcher.Constraint("Vertical", 0),
    Sketcher.Constraint("Horizontal", 1),
    Sketcher.Constraint("Vertical", 2),
    Sketcher.Constraint("Horizontal", 3),
    Sketcher.Constraint("DistanceX", 1, 1, 1, 2, Q("0.5 in")),
    Sketcher.Constraint("DistanceX", -1, 1, 0, 2, Q("1 in")),
    Sketcher.Constraint("DistanceY", 0, 2, -1, 1, Q("6 in")),
    Sketcher.Constraint("DistanceY", 0, 1, 0, 2, Q("0.125 in")),
])
pad16 = body16.newObject("PartDesign::Pad", "Pad015")
pad16.Profile = sketch19
pad16.Length = Q("0.125 in")
body17 = doc.addObject("PartDesign::Body", "Body016")

sketch20 = body17.newObject("Sketcher::SketchObject", "Sketch019")
sketch20.AttachmentSupport = (doc.getObject("XZ_Plane016"), [""])
sketch20.MapMode = "FlatFace"
sketch20.AttachmentOffset = App.Placement(Vector(0, 0, -0.125 * 25.4), App.Rotation())
add_polygon(sketch20, [(0, -155.6), (0, -152.4), (12.7, -152.4), (12.7, -155.6)])
sketch20.addConstraint([
    Sketcher.Constraint("Vertical", 0),
    Sketcher.Constraint("Horizontal", 1),
    Sketcher.Constraint("Vertical", 2),
    Sketcher.Constraint("Horizontal", 3),
    Sketcher.Constraint("PointOnObject", 0, 2, -2),
    Sketcher.Constraint("DistanceX", 1, 1, 1, 2, Q("0.5 in")),
    Sketcher.Constraint("DistanceY", 0, 2, -1, 1, Q("6 in")),
    Sketcher.Constraint("DistanceY", 0, 1, 0, 2, Q("0.125 in")),
])
pad17 = body17.newObject("PartDesign::Pad", "Pad016")
pad17.Profile = sketch20
pad17.Length = Q("0.125 in")
body3.AllowCompound = True
doc.recompute()

boolean = body3.newObject("PartDesign::Boolean", "Boolean")
boolean.Type = "Fuse"
boolean.addObjects([body4])
doc.recompute()

boolean2 = body3.newObject("PartDesign::Boolean", "Boolean001")
boolean2.Type = "Fuse"
boolean2.addObjects([body6])
doc.recompute()

boolean3 = body3.newObject("PartDesign::Boolean", "Boolean002")
boolean3.Type = "Fuse"
boolean3.addObjects([body8])
doc.recompute()

boolean4 = body3.newObject("PartDesign::Boolean", "Boolean003")
boolean4.Type = "Fuse"
boolean4.addObjects([body10])
doc.recompute()

boolean5 = body3.newObject("PartDesign::Boolean", "Boolean004")
boolean5.Type = "Fuse"
boolean5.addObjects([body12])
doc.recompute()

boolean6 = body3.newObject("PartDesign::Boolean", "Boolean005")
boolean6.Type = "Fuse"
boolean6.addObjects([body14])
doc.recompute()

boolean7 = body3.newObject("PartDesign::Boolean", "Boolean006")
boolean7.Type = "Fuse"
boolean7.addObjects([body16])
doc.recompute()

boolean8 = body3.newObject("PartDesign::Boolean", "Boolean007")
boolean8.Type = "Fuse"
boolean8.addObjects([body17])
doc.recompute()

boolean9 = body3.newObject("PartDesign::Boolean", "Boolean008")
boolean9.Type = "Fuse"
boolean9.addObjects([body])
doc.recompute()

boolean10 = body3.newObject("PartDesign::Boolean", "Boolean009")
boolean10.Type = "Fuse"
boolean10.addObjects([body2])
doc.recompute()

boolean11 = body3.newObject("PartDesign::Boolean", "Boolean010")
boolean11.Type = "Fuse"
boolean11.addObjects([body5])
doc.recompute()

boolean12 = body3.newObject("PartDesign::Boolean", "Boolean011")
boolean12.Type = "Fuse"
boolean12.addObjects([body7])
doc.recompute()

boolean13 = body3.newObject("PartDesign::Boolean", "Boolean012")
boolean13.Type = "Fuse"
boolean13.addObjects([body9])
doc.recompute()

boolean14 = body3.newObject("PartDesign::Boolean", "Boolean013")
boolean14.Type = "Fuse"
boolean14.addObjects([body11])
doc.recompute()

boolean15 = body3.newObject("PartDesign::Boolean", "Boolean014")
boolean15.Type = "Fuse"
boolean15.addObjects([body13])
doc.recompute()

boolean16 = body3.newObject("PartDesign::Boolean", "Boolean015")
boolean16.Type = "Fuse"
boolean16.addObjects([body15])

doc.recompute()
